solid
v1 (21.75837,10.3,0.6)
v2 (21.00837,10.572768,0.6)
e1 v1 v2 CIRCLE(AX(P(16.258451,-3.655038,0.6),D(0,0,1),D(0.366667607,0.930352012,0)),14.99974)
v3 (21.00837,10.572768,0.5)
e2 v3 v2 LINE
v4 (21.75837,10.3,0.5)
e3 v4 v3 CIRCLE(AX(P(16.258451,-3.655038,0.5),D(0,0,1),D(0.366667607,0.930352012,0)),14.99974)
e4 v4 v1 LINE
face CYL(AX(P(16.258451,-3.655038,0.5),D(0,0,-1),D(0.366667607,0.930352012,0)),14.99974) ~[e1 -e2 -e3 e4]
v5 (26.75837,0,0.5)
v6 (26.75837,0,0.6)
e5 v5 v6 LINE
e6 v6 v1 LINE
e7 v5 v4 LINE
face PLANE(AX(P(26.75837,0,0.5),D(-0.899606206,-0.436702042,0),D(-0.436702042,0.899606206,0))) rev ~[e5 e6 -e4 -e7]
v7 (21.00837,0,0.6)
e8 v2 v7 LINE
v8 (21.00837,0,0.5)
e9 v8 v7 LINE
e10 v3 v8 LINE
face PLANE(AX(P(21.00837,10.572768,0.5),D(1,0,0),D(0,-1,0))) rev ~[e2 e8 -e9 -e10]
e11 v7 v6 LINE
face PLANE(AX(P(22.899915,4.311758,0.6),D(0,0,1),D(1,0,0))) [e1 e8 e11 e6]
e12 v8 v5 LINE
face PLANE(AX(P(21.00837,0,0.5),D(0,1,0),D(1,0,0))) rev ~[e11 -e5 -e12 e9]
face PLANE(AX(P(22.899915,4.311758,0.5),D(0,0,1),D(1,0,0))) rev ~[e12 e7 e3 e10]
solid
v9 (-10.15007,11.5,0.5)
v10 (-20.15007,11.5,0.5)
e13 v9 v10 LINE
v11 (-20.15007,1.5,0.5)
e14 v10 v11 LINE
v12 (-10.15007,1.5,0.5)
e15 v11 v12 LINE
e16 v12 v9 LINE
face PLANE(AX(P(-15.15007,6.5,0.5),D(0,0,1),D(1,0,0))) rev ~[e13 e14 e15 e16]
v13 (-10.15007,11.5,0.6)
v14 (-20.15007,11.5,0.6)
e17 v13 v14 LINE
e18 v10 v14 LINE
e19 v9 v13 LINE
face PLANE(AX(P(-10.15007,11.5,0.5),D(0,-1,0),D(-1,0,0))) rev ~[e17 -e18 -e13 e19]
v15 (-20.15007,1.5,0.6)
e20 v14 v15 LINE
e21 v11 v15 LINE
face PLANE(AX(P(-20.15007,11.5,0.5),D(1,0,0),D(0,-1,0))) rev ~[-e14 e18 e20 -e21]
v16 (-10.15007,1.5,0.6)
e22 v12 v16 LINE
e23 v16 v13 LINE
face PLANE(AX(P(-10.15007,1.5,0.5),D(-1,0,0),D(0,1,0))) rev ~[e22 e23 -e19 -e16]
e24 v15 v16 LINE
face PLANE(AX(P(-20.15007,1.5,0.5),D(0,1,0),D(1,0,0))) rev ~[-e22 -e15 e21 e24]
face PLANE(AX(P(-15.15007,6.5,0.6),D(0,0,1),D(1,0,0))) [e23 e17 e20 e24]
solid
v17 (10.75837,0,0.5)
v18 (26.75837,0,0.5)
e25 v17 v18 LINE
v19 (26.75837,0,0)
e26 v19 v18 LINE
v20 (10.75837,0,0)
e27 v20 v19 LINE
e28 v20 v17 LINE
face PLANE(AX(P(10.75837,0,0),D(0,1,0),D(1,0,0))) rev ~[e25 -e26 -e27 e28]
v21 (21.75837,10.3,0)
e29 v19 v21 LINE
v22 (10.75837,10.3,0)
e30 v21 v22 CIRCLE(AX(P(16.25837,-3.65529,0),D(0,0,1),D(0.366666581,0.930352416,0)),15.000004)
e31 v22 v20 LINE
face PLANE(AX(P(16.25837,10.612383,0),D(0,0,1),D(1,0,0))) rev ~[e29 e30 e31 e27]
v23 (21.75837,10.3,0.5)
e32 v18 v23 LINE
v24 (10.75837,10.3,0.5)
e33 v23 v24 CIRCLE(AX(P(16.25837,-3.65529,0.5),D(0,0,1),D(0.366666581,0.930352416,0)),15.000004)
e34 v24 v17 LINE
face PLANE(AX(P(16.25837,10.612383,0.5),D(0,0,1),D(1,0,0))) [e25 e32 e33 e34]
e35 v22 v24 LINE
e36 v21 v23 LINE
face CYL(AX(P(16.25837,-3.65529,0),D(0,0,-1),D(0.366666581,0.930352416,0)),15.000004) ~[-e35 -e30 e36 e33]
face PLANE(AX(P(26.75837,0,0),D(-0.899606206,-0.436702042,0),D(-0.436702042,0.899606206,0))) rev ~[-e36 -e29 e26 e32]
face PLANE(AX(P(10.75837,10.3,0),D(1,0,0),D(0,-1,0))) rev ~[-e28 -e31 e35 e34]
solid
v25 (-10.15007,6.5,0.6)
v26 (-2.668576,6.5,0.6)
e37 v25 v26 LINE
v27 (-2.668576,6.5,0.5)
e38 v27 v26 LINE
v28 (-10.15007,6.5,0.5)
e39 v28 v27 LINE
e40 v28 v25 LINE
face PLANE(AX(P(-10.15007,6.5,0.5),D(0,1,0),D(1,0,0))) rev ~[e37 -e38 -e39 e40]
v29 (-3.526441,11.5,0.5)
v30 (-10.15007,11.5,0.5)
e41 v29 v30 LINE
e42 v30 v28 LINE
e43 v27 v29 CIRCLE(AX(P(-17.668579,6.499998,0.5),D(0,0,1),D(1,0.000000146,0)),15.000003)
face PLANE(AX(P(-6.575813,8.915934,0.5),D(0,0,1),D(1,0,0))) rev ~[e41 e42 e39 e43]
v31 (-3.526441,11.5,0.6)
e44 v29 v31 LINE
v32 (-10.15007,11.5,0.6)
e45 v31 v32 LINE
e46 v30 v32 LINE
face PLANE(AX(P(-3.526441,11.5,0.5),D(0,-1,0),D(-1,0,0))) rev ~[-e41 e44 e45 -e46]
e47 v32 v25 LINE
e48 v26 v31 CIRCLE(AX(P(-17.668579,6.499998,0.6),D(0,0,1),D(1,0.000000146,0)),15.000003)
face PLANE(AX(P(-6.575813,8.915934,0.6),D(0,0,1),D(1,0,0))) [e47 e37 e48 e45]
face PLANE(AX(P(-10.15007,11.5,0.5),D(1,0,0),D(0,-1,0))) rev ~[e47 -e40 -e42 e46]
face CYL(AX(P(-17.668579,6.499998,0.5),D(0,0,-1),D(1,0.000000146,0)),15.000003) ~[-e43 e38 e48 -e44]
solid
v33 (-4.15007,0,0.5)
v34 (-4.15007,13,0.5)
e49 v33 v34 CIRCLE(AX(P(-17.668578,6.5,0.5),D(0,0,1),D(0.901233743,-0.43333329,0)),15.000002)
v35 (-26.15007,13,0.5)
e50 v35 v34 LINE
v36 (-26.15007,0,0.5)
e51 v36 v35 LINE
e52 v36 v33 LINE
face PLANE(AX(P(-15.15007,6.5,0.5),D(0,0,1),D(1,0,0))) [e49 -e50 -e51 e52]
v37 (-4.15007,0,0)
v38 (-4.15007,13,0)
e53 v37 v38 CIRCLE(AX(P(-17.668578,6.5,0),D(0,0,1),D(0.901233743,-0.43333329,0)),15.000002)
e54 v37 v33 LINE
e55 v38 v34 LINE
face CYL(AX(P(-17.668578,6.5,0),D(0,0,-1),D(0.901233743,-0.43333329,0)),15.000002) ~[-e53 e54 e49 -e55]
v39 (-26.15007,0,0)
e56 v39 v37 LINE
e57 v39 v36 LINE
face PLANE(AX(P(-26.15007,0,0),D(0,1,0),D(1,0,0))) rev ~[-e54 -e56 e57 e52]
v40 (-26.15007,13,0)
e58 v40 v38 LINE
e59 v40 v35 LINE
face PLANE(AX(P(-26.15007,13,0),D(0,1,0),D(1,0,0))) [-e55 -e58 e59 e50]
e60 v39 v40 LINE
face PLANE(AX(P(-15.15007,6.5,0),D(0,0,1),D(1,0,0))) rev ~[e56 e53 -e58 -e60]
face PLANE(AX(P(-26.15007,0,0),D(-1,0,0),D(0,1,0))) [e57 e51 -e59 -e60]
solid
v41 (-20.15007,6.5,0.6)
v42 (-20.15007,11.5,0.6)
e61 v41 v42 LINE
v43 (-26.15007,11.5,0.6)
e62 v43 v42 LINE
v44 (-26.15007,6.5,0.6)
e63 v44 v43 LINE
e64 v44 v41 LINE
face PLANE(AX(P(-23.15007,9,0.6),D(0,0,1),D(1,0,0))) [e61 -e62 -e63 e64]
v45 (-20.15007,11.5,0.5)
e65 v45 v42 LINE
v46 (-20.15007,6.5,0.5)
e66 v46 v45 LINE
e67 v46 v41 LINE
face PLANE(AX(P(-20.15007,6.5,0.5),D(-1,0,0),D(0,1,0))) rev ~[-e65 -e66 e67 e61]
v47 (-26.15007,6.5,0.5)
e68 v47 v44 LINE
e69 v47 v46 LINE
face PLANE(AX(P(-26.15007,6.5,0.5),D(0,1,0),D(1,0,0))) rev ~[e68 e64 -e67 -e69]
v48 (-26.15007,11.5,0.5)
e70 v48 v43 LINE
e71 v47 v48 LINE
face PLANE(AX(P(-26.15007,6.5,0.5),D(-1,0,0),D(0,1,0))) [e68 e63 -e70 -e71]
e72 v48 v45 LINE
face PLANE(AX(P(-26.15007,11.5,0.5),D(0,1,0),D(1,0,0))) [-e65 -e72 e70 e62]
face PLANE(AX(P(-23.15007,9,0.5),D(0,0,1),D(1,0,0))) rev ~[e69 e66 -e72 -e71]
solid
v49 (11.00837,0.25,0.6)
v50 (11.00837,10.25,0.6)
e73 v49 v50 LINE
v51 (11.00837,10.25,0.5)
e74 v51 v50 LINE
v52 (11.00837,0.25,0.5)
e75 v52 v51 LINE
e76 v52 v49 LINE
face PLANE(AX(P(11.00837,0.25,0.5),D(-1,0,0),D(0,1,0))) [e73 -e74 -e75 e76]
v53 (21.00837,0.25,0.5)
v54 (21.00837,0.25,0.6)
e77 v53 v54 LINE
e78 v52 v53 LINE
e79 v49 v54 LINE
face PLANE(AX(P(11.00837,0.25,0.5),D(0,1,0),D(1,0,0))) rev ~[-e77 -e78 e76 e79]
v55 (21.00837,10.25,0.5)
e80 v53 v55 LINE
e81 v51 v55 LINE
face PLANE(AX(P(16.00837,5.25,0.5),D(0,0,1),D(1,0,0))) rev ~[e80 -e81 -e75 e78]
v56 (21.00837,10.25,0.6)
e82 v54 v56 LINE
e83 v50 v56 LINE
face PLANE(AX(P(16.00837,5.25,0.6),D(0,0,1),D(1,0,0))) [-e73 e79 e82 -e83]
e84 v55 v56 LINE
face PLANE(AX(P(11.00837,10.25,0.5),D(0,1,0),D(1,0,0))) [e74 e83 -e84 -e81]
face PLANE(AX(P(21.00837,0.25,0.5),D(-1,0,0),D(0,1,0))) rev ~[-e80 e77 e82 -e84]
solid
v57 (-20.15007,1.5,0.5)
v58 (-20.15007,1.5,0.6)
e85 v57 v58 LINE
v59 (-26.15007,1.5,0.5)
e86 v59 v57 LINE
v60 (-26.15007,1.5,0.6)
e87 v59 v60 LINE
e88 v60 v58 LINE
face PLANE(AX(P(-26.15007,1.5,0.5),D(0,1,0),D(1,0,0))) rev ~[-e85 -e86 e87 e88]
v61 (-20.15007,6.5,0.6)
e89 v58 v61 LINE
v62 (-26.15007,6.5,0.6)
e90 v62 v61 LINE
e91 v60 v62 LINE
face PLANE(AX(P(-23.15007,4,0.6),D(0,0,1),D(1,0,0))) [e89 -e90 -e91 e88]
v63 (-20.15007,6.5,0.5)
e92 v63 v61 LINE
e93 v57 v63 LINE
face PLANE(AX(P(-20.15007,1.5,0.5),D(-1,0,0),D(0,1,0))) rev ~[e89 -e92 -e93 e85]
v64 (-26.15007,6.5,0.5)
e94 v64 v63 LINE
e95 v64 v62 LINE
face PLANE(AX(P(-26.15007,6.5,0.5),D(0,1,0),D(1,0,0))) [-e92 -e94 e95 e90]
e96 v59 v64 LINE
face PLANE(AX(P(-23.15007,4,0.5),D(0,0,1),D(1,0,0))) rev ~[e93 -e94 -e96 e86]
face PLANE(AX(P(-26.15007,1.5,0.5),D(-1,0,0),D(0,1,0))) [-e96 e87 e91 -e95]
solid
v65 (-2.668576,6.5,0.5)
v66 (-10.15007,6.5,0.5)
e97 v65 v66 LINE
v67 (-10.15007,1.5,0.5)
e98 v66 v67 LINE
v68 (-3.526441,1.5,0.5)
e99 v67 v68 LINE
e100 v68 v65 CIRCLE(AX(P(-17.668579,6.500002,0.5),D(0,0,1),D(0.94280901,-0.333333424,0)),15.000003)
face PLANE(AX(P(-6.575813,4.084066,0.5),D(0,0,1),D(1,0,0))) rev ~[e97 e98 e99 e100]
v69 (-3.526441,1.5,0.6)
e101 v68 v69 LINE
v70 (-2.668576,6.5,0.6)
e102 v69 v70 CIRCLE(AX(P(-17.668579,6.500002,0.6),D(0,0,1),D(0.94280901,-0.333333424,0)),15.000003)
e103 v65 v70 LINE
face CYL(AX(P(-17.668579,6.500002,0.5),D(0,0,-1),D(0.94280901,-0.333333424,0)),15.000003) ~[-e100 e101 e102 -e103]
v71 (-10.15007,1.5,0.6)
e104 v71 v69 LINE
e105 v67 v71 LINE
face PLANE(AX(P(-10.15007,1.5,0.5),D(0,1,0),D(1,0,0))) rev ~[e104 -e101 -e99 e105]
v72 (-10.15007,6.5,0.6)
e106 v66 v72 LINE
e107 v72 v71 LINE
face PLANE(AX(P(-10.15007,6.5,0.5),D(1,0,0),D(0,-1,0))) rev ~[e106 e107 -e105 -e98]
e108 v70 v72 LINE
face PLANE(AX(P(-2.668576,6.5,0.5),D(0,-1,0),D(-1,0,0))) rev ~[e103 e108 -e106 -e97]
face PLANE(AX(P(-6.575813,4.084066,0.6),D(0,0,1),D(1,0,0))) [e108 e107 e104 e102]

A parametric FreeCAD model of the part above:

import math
import FreeCAD as App
import Part
import Sketcher

V = App.Vector


def add_polygon(sketch, points):
    """Adds a closed chain of lines whose ends are joined by coincident constraints."""
    first, n = sketch.GeometryCount, len(points)
    for a, b in zip(points, points[1:] + points[:1]):
        sketch.addGeometry(Part.LineSegment(App.Vector(*a, 0), App.Vector(*b, 0)), False)
    for i in range(n):
        sketch.addConstraint(Sketcher.Constraint("Coincident", first + i, 2, first + (i + 1) % n, 1))

doc = App.newDocument("Part")
body = doc.addObject("PartDesign::Body", "Body")
body.AllowCompound = True

sketch1 = doc.addObject("Sketcher::SketchObject", "Sketch")
body.addObject(sketch1)
sketch1.AttachmentSupport = (doc.XY_Plane, [""])
sketch1.MapMode = "FlatFace"
sketch1.addGeometry([
    Part.LineSegment(V(-26, 13, 0), V(-26, 0, 0)),
    Part.LineSegment(V(-26, 0, 0), V(-4, 0, 0)),
    Part.ArcOfCircle(Part.Circle(V(-18, 6, 0), V(0, 0, 1), 15), math.radians(-26), math.radians(26)),
    Part.LineSegment(V(-4, 13, 0), V(-26, 13, 0)),
    Part.ArcOfCircle(Part.Circle(V(16, -4, 0), V(0, 0, 1), 15), math.radians(68), math.radians(112)),
    Part.LineSegment(V(11, 10, 0), V(11, 0, 0)),
    Part.LineSegment(V(11, 0, 0), V(27, 0, 0)),
    Part.LineSegment(V(27, 0, 0), V(22, 10, 0)),
], False)
sketch1.addConstraint([
    Sketcher.Constraint("Coincident", 0, 2, 1, 1),
    Sketcher.Constraint("Coincident", 1, 2, 2, 1),
    Sketcher.Constraint("Coincident", 2, 2, 3, 1),
    Sketcher.Constraint("Coincident", 3, 2, 0, 1),
    Sketcher.Constraint("Coincident", 4, 2, 5, 1),
    Sketcher.Constraint("Coincident", 5, 2, 6, 1),
    Sketcher.Constraint("Coincident", 6, 2, 7, 1),
    Sketcher.Constraint("Coincident", 7, 2, 4, 1),
    Sketcher.Constraint("Vertical", 0),
    Sketcher.Constraint("Horizontal", 1),
    Sketcher.Constraint("Horizontal", 3),
    Sketcher.Constraint("Vertical", 5),
    Sketcher.Constraint("Horizontal", 6),
    Sketcher.Constraint("PointOnObject", 0, 2, -1),
    Sketcher.Constraint("PointOnObject", 5, 2, -1),
    Sketcher.Constraint("Horizontal", 4, 2, 7, 2),
    Sketcher.Constraint("Vertical", 1, 2, 2, 2),
    Sketcher.Constraint("Radius", 2, 15.000002),
    Sketcher.Constraint("DistanceX", 1, 1, 1, 2, 22.0),
    Sketcher.Constraint("DistanceX", 6, 1, 6, 2, 16.0),
    Sketcher.Constraint("DistanceY", 0, 2, 0, 1, 13.0),
    Sketcher.Constraint("DistanceY", 5, 2, 5, 1, 10.3),
    Sketcher.Constraint("DistanceX", 4, 2, 7, 2, 11.0),
    Sketcher.Constraint("Radius", 4, 15.000004),
    Sketcher.Constraint("DistanceX", -1, 1, 4, 3, 16.25837),
    Sketcher.Constraint("DistanceX", 0, 2, -1, 1, 26.15007),
])
pad1 = doc.addObject("PartDesign::Pad", "Pad")
body.addObject(pad1)
pad1.Profile = sketch1
pad1.Length = 0.5
body2 = doc.addObject("PartDesign::Body", "Body001")

sketch2 = doc.addObject("Sketcher::SketchObject", "Sketch001")
body2.addObject(sketch2)
sketch2.AttachmentSupport = (doc.getObject("XY_Plane001"), [""])
sketch2.MapMode = "FlatFace"
sketch2.AttachmentOffset = App.Placement(V(0, 0, 0.5), App.Rotation())
add_polygon(sketch2, [(-26, 6), (-26, 2), (-20, 2), (-20, 6)])
sketch2.addConstraint([
    Sketcher.Constraint("Vertical", 0),
    Sketcher.Constraint("Horizontal", 1),
    Sketcher.Constraint("Vertical", 2),
    Sketcher.Constraint("Horizontal", 3),
    Sketcher.Constraint("DistanceX", 1, 1, 1, 2, 6.0),
    Sketcher.Constraint("DistanceY", 0, 2, 0, 1, 5.0),
    Sketcher.Constraint("DistanceY", -1, 1, 0, 2, 1.5),
    Sketcher.Constraint("DistanceX", 0, 2, -1, 1, 26.15007),
])
pad2 = doc.addObject("PartDesign::Pad", "Pad001")
body2.addObject(pad2)
pad2.Profile = sketch2
pad2.Length = 0.1
body3 = doc.addObject("PartDesign::Body", "Body002")

sketch3 = doc.addObject("Sketcher::SketchObject", "Sketch002")
body3.addObject(sketch3)
sketch3.AttachmentSupport = (doc.getObject("XY_Plane002"), [""])
sketch3.MapMode = "FlatFace"
sketch3.AttachmentOffset = App.Placement(V(0, 0, 0.5), App.Rotation())
add_polygon(sketch3, [(-26, 12), (-26, 6), (-20, 6), (-20, 12)])
sketch3.addConstraint([
    Sketcher.Constraint("Vertical", 0),
    Sketcher.Constraint("Horizontal", 1),
    Sketcher.Constraint("Vertical", 2),
    Sketcher.Constraint("Horizontal", 3),
    Sketcher.Constraint("DistanceX", 1, 1, 1, 2, 6.0),
    Sketcher.Constraint("DistanceY", 0, 2, 0, 1, 5.0),
    Sketcher.Constraint("DistanceY", -1, 1, 0, 2, 6.5),
    Sketcher.Constraint("DistanceX", 0, 2, -1, 1, 26.15007),
])
pad3 = doc.addObject("PartDesign::Pad", "Pad002")
body3.addObject(pad3)
pad3.Profile = sketch3
pad3.Length = 0.1
body4 = doc.addObject("PartDesign::Body", "Body003")

sketch4 = doc.addObject("Sketcher::SketchObject", "Sketch003")
body4.addObject(sketch4)
sketch4.AttachmentSupport = (doc.getObject("XY_Plane003"), [""])
sketch4.MapMode = "FlatFace"
sketch4.AttachmentOffset = App.Placement(V(0, 0, 0.5), App.Rotation())
add_polygon(sketch4, [(-20, 2), (-10, 2), (-10, 12), (-20, 12)])
sketch4.addConstraint([
    Sketcher.Constraint("Horizontal", 0),
    Sketcher.Constraint("Vertical", 1),
    Sketcher.Constraint("Horizontal", 2),
    Sketcher.Constraint("Vertical", 3),
    Sketcher.Constraint("Equal", 2, 1),
    Sketcher.Constraint("DistanceX", 0, 1, 0, 2, 10.0),
    Sketcher.Constraint("DistanceY", -1, 1, 0, 2, 1.5),
    Sketcher.Constraint("DistanceX", 0, 2, -1, 1, 10.15007),
])
pad4 = doc.addObject("PartDesign::Pad", "Pad003")
body4.addObject(pad4)
pad4.Profile = sketch4
pad4.Length = 0.1
body5 = doc.addObject("PartDesign::Body", "Body004")

sketch5 = doc.addObject("Sketcher::SketchObject", "Sketch004")
body5.addObject(sketch5)
sketch5.AttachmentSupport = (doc.getObject("XY_Plane004"), [""])
sketch5.MapMode = "FlatFace"
sketch5.AttachmentOffset = App.Placement(V(0, 0, 0.5), App.Rotation())
sketch5.addGeometry([
    Part.LineSegment(V(-10, 6, 0), V(-10, 2, 0)),
    Part.LineSegment(V(-10, 2, 0), V(-4, 2, 0)),
    Part.ArcOfCircle(Part.Circle(V(-18, 7, 0), V(0, 0, 1), 15), math.radians(-19.47), math.radians(0)),
    Part.LineSegment(V(-3, 6, 0), V(-10, 6, 0)),
], False)
sketch5.addConstraint([
    Sketcher.Constraint("Coincident", 0, 2, 1, 1),
    Sketcher.Constraint("Coincident", 1, 2, 2, 1),
    Sketcher.Constraint("Coincident", 2, 2, 3, 1),
    Sketcher.Constraint("Coincident", 3, 2, 0, 1),
    Sketcher.Constraint("Vertical", 0),
    Sketcher.Constraint("Horizontal", 1),
    Sketcher.Constraint("Horizontal", 3),
    Sketcher.Constraint("DistanceY", 0, 2, 0, 1, 5.0),
    Sketcher.Constraint("DistanceY", -1, 1, 0, 2, 1.5),
    Sketcher.Constraint("Radius", 2, 15.000003),
    Sketcher.Constraint("DistanceX", 1, 1, 1, 2, 6.623629),
    Sketcher.Constraint("DistanceX", 3, 2, 3, 1, 7.481494),
    Sketcher.Constraint("DistanceX", 2, 3, -1, 1, 17.668579),
])
pad5 = doc.addObject("PartDesign::Pad", "Pad004")
body5.addObject(pad5)
pad5.Profile = sketch5
pad5.Length = 0.1
body6 = doc.addObject("PartDesign::Body", "Body005")

sketch6 = doc.addObject("Sketcher::SketchObject", "Sketch005")
body6.addObject(sketch6)
sketch6.AttachmentSupport = (doc.getObject("XY_Plane005"), [""])
sketch6.MapMode = "FlatFace"
sketch6.AttachmentOffset = App.Placement(V(0, 0, 0.5), App.Rotation())
sketch6.addGeometry([
    Part.LineSegment(V(-10, 12, 0), V(-10, 6, 0)),
    Part.LineSegment(V(-10, 6, 0), V(-3, 6, 0)),
    Part.ArcOfCircle(Part.Circle(V(-18, 6, 0), V(0, 0, 1), 15), math.radians(0), math.radians(19.47)),
    Part.LineSegment(V(-4, 12, 0), V(-10, 12, 0)),
], False)
sketch6.addConstraint([
    Sketcher.Constraint("Coincident", 0, 2, 1, 1),
    Sketcher.Constraint("Coincident", 1, 2, 2, 1),
    Sketcher.Constraint("Coincident", 2, 2, 3, 1),
    Sketcher.Constraint("Coincident", 3, 2, 0, 1),
    Sketcher.Constraint("Vertical", 0),
    Sketcher.Constraint("Horizontal", 1),
    Sketcher.Constraint("Horizontal", 3),
    Sketcher.Constraint("DistanceY", 0, 2, 0, 1, 5.0),
    Sketcher.Constraint("DistanceY", -1, 1, 0, 2, 6.5),
    Sketcher.Constraint("Radius", 2, 15.000003),
    Sketcher.Constraint("DistanceX", 3, 2, 3, 1, 6.623629),
    Sketcher.Constraint("DistanceX", 1, 1, 1, 2, 7.481494),
    Sketcher.Constraint("DistanceX", 2, 3, -1, 1, 17.668579),
])
pad6 = doc.addObject("PartDesign::Pad", "Pad005")
body6.addObject(pad6)
pad6.Profile = sketch6
pad6.Length = 0.1
body7 = doc.addObject("PartDesign::Body", "Body006")

sketch7 = doc.addObject("Sketcher::SketchObject", "Sketch006")
body7.addObject(sketch7)
sketch7.AttachmentSupport = (doc.getObject("XY_Plane006"), [""])
sketch7.MapMode = "FlatFace"
sketch7.AttachmentOffset = App.Placement(V(0, 0, 0.5), App.Rotation())
add_polygon(sketch7, [(11, 10), (11, 0), (21, 0), (21, 10)])
sketch7.addConstraint([
    Sketcher.Constraint("Vertical", 0),
    Sketcher.Constraint("Horizontal", 1),
    Sketcher.Constraint("Vertical", 2),
    Sketcher.Constraint("Horizontal", 3),
    Sketcher.Constraint("Equal", 3, 0),
    Sketcher.Constraint("DistanceX", 1, 1, 1, 2, 10.0),
    Sketcher.Constraint("DistanceY", -1, 1, 0, 2, 0.25),
    Sketcher.Constraint("DistanceX", -1, 1, 0, 2, 11.00837),
])
pad7 = doc.addObject("PartDesign::Pad", "Pad006")
body7.addObject(pad7)
pad7.Profile = sketch7
pad7.Length = 0.1
body8 = doc.addObject("PartDesign::Body", "Body007")

sketch8 = doc.addObject("Sketcher::SketchObject", "Sketch007")
body8.addObject(sketch8)
sketch8.AttachmentSupport = (doc.getObject("XY_Plane007"), [""])
sketch8.MapMode = "FlatFace"
sketch8.AttachmentOffset = App.Placement(V(0, 0, 0.5), App.Rotation())
sketch8.addGeometry([
    Part.LineSegment(V(21, 0, 0), V(26.8, 0, 0)),
    Part.LineSegment(V(26.8, 0, 0), V(21.8, 10.3, 0)),
    Part.ArcOfCircle(Part.Circle(V(16.3, -3.7, 0), V(0, 0, 1), 15), math.radians(68.49), math.radians(71.54)),
    Part.LineSegment(V(21, 10.6, 0), V(21, 0, 0)),
], False)
sketch8.addConstraint([
    Sketcher.Constraint("Coincident", 0, 2, 1, 1),
    Sketcher.Constraint("Coincident", 1, 2, 2, 1),
    Sketcher.Constraint("Coincident", 2, 2, 3, 1),
    Sketcher.Constraint("Coincident", 3, 2, 0, 1),
    Sketcher.Constraint("Horizontal", 0),
    Sketcher.Constraint("Vertical", 3),
    Sketcher.Constraint("PointOnObject", 0, 2, -1),
    Sketcher.Constraint("DistanceX", 1, 2, 0, 2, 5.0),
    Sketcher.Constraint("DistanceX", 0, 1, 0, 2, 5.75),
    Sketcher.Constraint("DistanceY", -1, 1, 1, 2, 10.3),
    Sketcher.Constraint("Radius", 2, 14.99974),
    Sketcher.Constraint("DistanceY", 3, 2, 3, 1, 10.572768),
    Sketcher.Constraint("DistanceX", -1, 1, 2, 3, 16.258451),
])
pad8 = doc.addObject("PartDesign::Pad", "Pad007")
body8.addObject(pad8)
pad8.Profile = sketch8
pad8.Length = 0.1

doc.recompute()
